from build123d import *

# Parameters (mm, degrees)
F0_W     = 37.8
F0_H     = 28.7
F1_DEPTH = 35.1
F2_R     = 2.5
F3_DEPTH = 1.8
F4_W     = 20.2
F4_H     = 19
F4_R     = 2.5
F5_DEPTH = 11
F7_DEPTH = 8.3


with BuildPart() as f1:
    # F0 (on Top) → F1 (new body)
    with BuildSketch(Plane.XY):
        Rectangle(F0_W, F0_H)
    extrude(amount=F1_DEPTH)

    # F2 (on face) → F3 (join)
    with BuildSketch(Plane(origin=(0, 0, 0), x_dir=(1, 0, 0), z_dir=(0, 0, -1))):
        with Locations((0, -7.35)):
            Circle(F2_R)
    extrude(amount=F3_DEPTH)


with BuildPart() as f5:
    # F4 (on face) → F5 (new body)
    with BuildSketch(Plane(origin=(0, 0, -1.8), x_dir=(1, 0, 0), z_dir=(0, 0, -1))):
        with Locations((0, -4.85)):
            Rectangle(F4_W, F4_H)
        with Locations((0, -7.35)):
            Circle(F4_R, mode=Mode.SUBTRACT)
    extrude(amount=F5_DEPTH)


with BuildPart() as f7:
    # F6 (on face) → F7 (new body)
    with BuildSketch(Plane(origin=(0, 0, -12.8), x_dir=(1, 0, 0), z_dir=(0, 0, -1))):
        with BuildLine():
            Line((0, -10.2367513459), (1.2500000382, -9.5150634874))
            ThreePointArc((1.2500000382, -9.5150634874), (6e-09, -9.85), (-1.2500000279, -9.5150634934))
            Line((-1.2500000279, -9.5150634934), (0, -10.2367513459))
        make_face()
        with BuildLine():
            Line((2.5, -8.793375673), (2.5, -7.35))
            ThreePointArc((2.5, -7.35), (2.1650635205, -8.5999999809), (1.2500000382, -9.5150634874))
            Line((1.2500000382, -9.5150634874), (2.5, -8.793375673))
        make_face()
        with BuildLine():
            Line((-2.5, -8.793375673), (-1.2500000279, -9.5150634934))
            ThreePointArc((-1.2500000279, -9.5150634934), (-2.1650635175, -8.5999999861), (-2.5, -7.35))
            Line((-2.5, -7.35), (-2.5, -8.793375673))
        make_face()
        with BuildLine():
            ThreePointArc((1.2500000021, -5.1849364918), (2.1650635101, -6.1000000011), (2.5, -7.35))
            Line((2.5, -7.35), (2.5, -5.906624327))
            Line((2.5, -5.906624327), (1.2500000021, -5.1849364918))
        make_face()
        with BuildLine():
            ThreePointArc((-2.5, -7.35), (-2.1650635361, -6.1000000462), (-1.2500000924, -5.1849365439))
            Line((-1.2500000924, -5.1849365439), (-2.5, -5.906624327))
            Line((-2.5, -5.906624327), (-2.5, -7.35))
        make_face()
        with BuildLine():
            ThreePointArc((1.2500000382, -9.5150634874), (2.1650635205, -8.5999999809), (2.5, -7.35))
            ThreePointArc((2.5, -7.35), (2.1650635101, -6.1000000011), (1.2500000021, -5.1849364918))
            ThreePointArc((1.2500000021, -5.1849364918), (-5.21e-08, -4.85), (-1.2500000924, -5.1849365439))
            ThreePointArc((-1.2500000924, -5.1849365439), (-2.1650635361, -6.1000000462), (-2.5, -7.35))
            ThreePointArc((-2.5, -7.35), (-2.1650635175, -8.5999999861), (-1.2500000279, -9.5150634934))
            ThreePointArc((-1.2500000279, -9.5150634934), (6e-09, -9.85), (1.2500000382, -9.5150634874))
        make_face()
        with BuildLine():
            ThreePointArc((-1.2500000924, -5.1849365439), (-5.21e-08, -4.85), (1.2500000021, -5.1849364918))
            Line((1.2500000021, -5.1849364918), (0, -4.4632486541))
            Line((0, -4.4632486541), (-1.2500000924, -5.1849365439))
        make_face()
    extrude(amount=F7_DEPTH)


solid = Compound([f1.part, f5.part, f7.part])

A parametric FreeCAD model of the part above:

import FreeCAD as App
import Part
import Sketcher
from FreeCAD import Vector
Q = App.Units.Quantity

doc = App.newDocument("Part")
body = doc.addObject("PartDesign::Body", "Body")

# Sketch on XY plane
sketch1 = body.newObject("Sketcher::SketchObject", "Sketch")
sketch1.AttachmentSupport = (doc.getObject("XY_Plane"), [""])
sketch1.MapMode = "FlatFace"
sketch1.addGeometry(Part.LineSegment(Vector(-18.9, 14.35, 0), Vector(-18.9, -14.35, 0)), False)
sketch1.addGeometry(Part.LineSegment(Vector(-18.9, -14.35, 0), Vector(18.9, -14.35, 0)), False)
sketch1.addGeometry(Part.LineSegment(Vector(18.9, -14.35, 0), Vector(18.9, 14.35, 0)), False)
sketch1.addGeometry(Part.LineSegment(Vector(18.9, 14.35, 0), Vector(-18.9, 14.35, 0)), False)
sketch1.addConstraint(Sketcher.Constraint("Coincident", 0, 2, 1, 1))
sketch1.addConstraint(Sketcher.Constraint("Coincident", 1, 2, 2, 1))
sketch1.addConstraint(Sketcher.Constraint("Coincident", 2, 2, 3, 1))
sketch1.addConstraint(Sketcher.Constraint("Coincident", 3, 2, 0, 1))
sketch1.addConstraint(Sketcher.Constraint("Vertical", 0))
sketch1.addConstraint(Sketcher.Constraint("Horizontal", 1))
sketch1.addConstraint(Sketcher.Constraint("Vertical", 2))
sketch1.addConstraint(Sketcher.Constraint("Horizontal", 3))
sketch1.addConstraint(Sketcher.Constraint("Symmetric", 0, 2, 2, 2, -1, 1))
sketch1.addConstraint(Sketcher.Constraint("DistanceX", 1, 1, 1, 2, 37.8))
sketch1.addConstraint(Sketcher.Constraint("DistanceY", 0, 2, 0, 1, 28.7))
pad1 = body.newObject("PartDesign::Pad", "Pad")
pad1.Profile = sketch1
pad1.Length = 35.1

# Sketch on XY plane
sketch2 = body.newObject("Sketcher::SketchObject", "Sketch001")
sketch2.AttachmentSupport = (doc.getObject("XY_Plane"), [""])
sketch2.MapMode = "FlatFace"
sketch2.addGeometry(Part.Circle(Vector(0, 7.35, 0), Vector(0, 0, 1), 2.5), False)
sketch2.addConstraint(Sketcher.Constraint("PointOnObject", 0, 3, -2))
sketch2.addConstraint(Sketcher.Constraint("Diameter", 0, 5.0))
sketch2.addConstraint(Sketcher.Constraint("DistanceY", -1, 1, 0, 3, 7.35))
pad2 = body.newObject("PartDesign::Pad", "Pad001")
pad2.Profile = sketch2
pad2.Length = 1.8
pad2.Reversed = True
body2 = doc.addObject("PartDesign::Body", "Body001")

# Sketch on XY plane
sketch3 = body2.newObject("Sketcher::SketchObject", "Sketch002")
sketch3.AttachmentSupport = (doc.getObject("XY_Plane001"), [""])
sketch3.MapMode = "FlatFace"
sketch3.AttachmentOffset = App.Placement(Vector(0, 0, -1.8), App.Rotation())
sketch3.addGeometry(Part.LineSegment(Vector(-10.1, -4.65, 0), Vector(-10.1, 14.35, 0)), False)
sketch3.addGeometry(Part.LineSegment(Vector(-10.1, 14.35, 0), Vector(10.1, 14.35, 0)), False)
sketch3.addGeometry(Part.LineSegment(Vector(10.1, 14.35, 0), Vector(10.1, -4.65, 0)), False)
sketch3.addGeometry(Part.LineSegment(Vector(10.1, -4.65, 0), Vector(-10.1, -4.65, 0)), False)
sketch3.addGeometry(Part.Circle(Vector(0, 7.35, 0), Vector(0, 0, 1), 2.5), False)
sketch3.addConstraint(Sketcher.Constraint("Coincident", 0, 2, 1, 1))
sketch3.addConstraint(Sketcher.Constraint("Coincident", 1, 2, 2, 1))
sketch3.addConstraint(Sketcher.Constraint("Coincident", 2, 2, 3, 1))
sketch3.addConstraint(Sketcher.Constraint("Coincident", 3, 2, 0, 1))
sketch3.addConstraint(Sketcher.Constraint("Vertical", 0))
sketch3.addConstraint(Sketcher.Constraint("Horizontal", 1))
sketch3.addConstraint(Sketcher.Constraint("Vertical", 2))
sketch3.addConstraint(Sketcher.Constraint("Horizontal", 3))
sketch3.addConstraint(Sketcher.Constraint("PointOnObject", 4, 3, -2))
sketch3.addConstraint(Sketcher.Constraint("Diameter", 4, 5.0))
sketch3.addConstraint(Sketcher.Constraint("DistanceY", 0, 1, 0, 2, 19.0))
sketch3.addConstraint(Sketcher.Constraint("DistanceX", 1, 1, 1, 2, 20.2))
sketch3.addConstraint(Sketcher.Constraint("DistanceY", 4, 3, 0, 2, 7.0))
sketch3.addConstraint(Sketcher.Constraint("DistanceX", 0, 2, -1, 1, 10.1))
sketch3.addConstraint(Sketcher.Constraint("DistanceY", -1, 1, 4, 3, 7.35))
pad3 = body2.newObject("PartDesign::Pad", "Pad002")
pad3.Profile = sketch3
pad3.Length = 11
pad3.Reversed = True
body3 = doc.addObject("PartDesign::Body", "Body002")

# Sketch on XY plane
sketch4 = body3.newObject("Sketcher::SketchObject", "Sketch003")
sketch4.AttachmentSupport = (doc.getObject("XY_Plane002"), [""])
sketch4.MapMode = "FlatFace"
sketch4.AttachmentOffset = App.Placement(Vector(0, 0, -12.8), App.Rotation())
sketch4.addGeometry(Part.LineSegment(Vector(0, 10.236751, 0), Vector(1.25, 9.515063, 0)), False)
sketch4.addGeometry(Part.LineSegment(Vector(1.25, 9.515063, 0), Vector(2.5, 8.793376, 0)), False)
sketch4.addGeometry(Part.LineSegment(Vector(2.5, 8.793376, 0), Vector(2.5, 5.906624, 0)), False)
sketch4.addGeometry(Part.LineSegment(Vector(2.5, 5.906624, 0), Vector(1.25, 5.184936, 0)), False)
sketch4.addGeometry(Part.LineSegment(Vector(1.25, 5.184936, 0), Vector(0, 4.463249, 0)), False)
sketch4.addGeometry(Part.LineSegment(Vector(0, 4.463249, 0), Vector(-1.25, 5.184937, 0)), False)
sketch4.addGeometry(Part.LineSegment(Vector(-1.25, 5.184937, 0), Vector(-2.5, 5.906624, 0)), False)
sketch4.addGeometry(Part.LineSegment(Vector(-2.5, 5.906624, 0), Vector(-2.5, 8.793376, 0)), False)
sketch4.addGeometry(Part.LineSegment(Vector(-2.5, 8.793376, 0), Vector(-1.25, 9.515063, 0)), False)
sketch4.addGeometry(Part.LineSegment(Vector(-1.25, 9.515063, 0), Vector(0, 10.236751, 0)), False)
sketch4.addConstraint(Sketcher.Constraint("Coincident", 0, 2, 1, 1))
sketch4.addConstraint(Sketcher.Constraint("Coincident", 1, 2, 2, 1))
sketch4.addConstraint(Sketcher.Constraint("Coincident", 2, 2, 3, 1))
sketch4.addConstraint(Sketcher.Constraint("Coincident", 3, 2, 4, 1))
sketch4.addConstraint(Sketcher.Constraint("Coincident", 4, 2, 5, 1))
sketch4.addConstraint(Sketcher.Constraint("Coincident", 5, 2, 6, 1))
sketch4.addConstraint(Sketcher.Constraint("Coincident", 6, 2, 7, 1))
sketch4.addConstraint(Sketcher.Constraint("Coincident", 7, 2, 8, 1))
sketch4.addConstraint(Sketcher.Constraint("Coincident", 8, 2, 9, 1))
sketch4.addConstraint(Sketcher.Constraint("Coincident", 9, 2, 0, 1))
sketch4.addConstraint(Sketcher.Constraint("Vertical", 2))
sketch4.addConstraint(Sketcher.Constraint("Vertical", 7))
sketch4.addConstraint(Sketcher.Constraint("Symmetric", 3, 2, 5, 2, -2))
sketch4.addConstraint(Sketcher.Constraint("Symmetric", 2, 2, 6, 2, -2))
sketch4.addConstraint(Sketcher.Constraint("Symmetric", 0, 2, 8, 2, -2))
sketch4.addConstraint(Sketcher.Constraint("PointOnObject", 4, 2, -2))
sketch4.addConstraint(Sketcher.Constraint("PointOnObject", 9, 2, -2))
sketch4.addConstraint(Sketcher.Constraint("Parallel", 0, 1))
sketch4.addConstraint(Sketcher.Constraint("Parallel", 3, 4))
sketch4.addConstraint(Sketcher.Constraint("Parallel", 1, 5))
sketch4.addConstraint(Sketcher.Constraint("Parallel", 4, 8))
sketch4.addConstraint(Sketcher.Constraint("Vertical", 0, 2, 3, 2))
sketch4.addConstraint(Sketcher.Constraint("Equal", 0, 1))
sketch4.addConstraint(Sketcher.Constraint("Angle", 0, Q("-30 deg")))
sketch4.addConstraint(Sketcher.Constraint("DistanceX", 6, 2, 2, 2, 5.0))
sketch4.addConstraint(Sketcher.Constraint("DistanceY", 2, 2, 2, 1, 2.886751))
sketch4.addConstraint(Sketcher.Constraint("DistanceY", -1, 1, 4, 2, 4.463249))
pad4 = body3.newObject("PartDesign::Pad", "Pad003")
pad4.Profile = sketch4
pad4.Length = 8.3
pad4.Reversed = True

doc.recompute()
